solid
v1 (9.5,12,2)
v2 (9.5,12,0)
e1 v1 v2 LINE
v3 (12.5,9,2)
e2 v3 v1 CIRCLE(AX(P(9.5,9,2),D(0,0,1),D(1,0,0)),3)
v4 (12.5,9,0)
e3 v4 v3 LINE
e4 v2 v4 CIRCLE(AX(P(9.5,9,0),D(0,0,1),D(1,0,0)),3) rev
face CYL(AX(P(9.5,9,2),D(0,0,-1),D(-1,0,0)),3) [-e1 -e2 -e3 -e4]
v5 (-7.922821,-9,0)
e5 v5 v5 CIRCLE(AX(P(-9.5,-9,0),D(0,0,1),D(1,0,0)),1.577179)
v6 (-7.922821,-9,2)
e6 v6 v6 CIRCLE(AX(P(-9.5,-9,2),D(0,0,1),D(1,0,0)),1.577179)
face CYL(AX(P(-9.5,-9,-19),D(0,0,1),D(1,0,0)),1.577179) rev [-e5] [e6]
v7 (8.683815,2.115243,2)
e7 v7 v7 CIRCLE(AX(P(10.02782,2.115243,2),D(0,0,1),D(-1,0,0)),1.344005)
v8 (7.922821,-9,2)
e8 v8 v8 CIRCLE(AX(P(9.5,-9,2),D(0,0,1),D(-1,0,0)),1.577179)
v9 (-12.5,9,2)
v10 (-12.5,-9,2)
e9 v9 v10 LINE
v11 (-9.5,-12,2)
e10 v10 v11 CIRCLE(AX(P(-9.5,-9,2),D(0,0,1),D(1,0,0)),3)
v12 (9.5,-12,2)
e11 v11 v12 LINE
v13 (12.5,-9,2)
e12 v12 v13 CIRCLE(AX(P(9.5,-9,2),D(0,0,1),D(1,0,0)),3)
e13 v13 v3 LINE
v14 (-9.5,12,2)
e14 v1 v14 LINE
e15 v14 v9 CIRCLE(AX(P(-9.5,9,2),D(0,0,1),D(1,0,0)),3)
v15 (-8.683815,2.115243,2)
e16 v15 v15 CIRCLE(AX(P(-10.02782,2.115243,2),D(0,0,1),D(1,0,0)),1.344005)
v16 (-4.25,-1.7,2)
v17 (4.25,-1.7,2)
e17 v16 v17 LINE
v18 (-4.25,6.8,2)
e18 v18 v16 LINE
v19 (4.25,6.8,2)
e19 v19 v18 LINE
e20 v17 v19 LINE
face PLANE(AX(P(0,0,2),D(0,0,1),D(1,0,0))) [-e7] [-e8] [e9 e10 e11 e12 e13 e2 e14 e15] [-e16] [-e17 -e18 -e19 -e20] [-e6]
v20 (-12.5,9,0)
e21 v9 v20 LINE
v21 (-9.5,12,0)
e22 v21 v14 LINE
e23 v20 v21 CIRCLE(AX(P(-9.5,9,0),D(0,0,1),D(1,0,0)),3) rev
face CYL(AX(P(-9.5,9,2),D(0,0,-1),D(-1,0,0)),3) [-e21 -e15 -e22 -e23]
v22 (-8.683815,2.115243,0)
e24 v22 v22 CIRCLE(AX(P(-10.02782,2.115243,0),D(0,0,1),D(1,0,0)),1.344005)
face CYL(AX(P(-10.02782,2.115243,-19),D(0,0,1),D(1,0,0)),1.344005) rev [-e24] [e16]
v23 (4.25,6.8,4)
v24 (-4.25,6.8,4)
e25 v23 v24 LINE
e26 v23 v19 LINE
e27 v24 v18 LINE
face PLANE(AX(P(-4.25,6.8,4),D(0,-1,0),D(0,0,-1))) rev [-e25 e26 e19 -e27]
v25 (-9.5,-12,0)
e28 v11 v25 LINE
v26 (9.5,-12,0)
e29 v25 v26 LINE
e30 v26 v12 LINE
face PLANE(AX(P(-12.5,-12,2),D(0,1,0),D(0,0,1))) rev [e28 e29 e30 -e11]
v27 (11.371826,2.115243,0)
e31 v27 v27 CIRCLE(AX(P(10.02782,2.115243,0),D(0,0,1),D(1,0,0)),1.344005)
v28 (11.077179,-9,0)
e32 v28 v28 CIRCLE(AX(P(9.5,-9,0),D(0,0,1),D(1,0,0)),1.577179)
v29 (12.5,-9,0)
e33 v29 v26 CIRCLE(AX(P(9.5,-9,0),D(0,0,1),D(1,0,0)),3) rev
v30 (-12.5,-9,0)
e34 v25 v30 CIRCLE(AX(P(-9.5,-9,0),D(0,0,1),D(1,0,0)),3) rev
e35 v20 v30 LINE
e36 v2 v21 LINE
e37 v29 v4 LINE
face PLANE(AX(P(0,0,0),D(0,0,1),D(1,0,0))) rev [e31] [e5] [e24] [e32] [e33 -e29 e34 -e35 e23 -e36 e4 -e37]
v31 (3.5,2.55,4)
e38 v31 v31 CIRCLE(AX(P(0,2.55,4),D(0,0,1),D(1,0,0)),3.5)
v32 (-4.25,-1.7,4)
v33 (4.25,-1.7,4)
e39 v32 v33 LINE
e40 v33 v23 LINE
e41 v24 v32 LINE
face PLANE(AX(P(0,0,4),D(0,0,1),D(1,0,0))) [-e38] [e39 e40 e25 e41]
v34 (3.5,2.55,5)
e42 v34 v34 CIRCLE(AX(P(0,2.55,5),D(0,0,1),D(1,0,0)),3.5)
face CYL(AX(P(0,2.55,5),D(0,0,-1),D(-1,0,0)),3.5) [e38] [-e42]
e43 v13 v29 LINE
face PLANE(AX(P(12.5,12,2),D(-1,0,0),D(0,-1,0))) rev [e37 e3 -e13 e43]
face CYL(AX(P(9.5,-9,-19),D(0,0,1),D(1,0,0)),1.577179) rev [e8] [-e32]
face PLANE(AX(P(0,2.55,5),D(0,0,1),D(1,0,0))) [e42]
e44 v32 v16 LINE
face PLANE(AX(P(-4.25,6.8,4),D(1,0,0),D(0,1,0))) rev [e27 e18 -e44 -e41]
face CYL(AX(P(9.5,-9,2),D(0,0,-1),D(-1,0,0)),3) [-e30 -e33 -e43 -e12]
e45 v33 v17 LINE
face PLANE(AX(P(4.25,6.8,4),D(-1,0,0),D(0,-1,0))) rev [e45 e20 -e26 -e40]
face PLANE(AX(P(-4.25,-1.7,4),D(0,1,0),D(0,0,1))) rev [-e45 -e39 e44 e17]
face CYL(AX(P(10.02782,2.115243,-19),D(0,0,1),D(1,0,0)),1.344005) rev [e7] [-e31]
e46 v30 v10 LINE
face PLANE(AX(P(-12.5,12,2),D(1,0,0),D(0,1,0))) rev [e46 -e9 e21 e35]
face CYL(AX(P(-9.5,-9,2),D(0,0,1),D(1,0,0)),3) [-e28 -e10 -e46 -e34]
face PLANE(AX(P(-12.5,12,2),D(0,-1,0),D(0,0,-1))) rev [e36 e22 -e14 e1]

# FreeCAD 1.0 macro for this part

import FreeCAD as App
import Part
import Sketcher


def edges_at(feature, points):
    """Names of the edges that pass closest to the given points."""
    edges = feature.Shape.Edges
    near = lambda p: min(range(len(edges)), key=lambda i: edges[i].distToShape(Part.Vertex(*p))[0])
    return sorted({f"Edge{near(p) + 1}" for p in points})


def add_polygon(sketch, points):
    """Adds a closed chain of lines whose ends are joined by coincident constraints."""
    first, n = sketch.GeometryCount, len(points)
    for a, b in zip(points, points[1:] + points[:1]):
        sketch.addGeometry(Part.LineSegment(App.Vector(*a, 0), App.Vector(*b, 0)), False)
    for i in range(n):
        sketch.addConstraint(Sketcher.Constraint("Coincident", first + i, 2, first + (i + 1) % n, 1))

doc = App.newDocument("Part")
body = doc.addObject("PartDesign::Body", "Body")

# Sketch on XY plane
sketch1 = body.newObject("Sketcher::SketchObject", "Sketch")
sketch1.AttachmentSupport = (doc.getObject("XY_Plane"), [""])
sketch1.MapMode = "FlatFace"
add_polygon(sketch1, [(-12.5, 12), (-12.5, -12), (12.5, -12), (12.5, 12)])  # lines 0-3
sketch1.addConstraint(Sketcher.Constraint("Vertical", 0))
sketch1.addConstraint(Sketcher.Constraint("Horizontal", 1))
sketch1.addConstraint(Sketcher.Constraint("Vertical", 2))
sketch1.addConstraint(Sketcher.Constraint("Horizontal", 3))
sketch1.addConstraint(Sketcher.Constraint("Symmetric", 0, 2, 2, 2, -1, 1))
sketch1.addConstraint(Sketcher.Constraint("DistanceX", 1, 1, 1, 2, 25.0))
sketch1.addConstraint(Sketcher.Constraint("DistanceY", 0, 2, 0, 1, 24.0))
pad1 = body.newObject("PartDesign::Pad", "Pad")
pad1.Profile = sketch1
pad1.Length = 2

# Sketch on XY plane
sketch2 = body.newObject("Sketcher::SketchObject", "Sketch001")
sketch2.AttachmentSupport = (doc.getObject("XY_Plane"), [""])
sketch2.MapMode = "FlatFace"
sketch2.AttachmentOffset = App.Placement(App.Vector(0, 0, 2), App.Rotation())
add_polygon(sketch2, [(-4.25, 6.8), (-4.25, -1.7), (4.25, -1.7), (4.25, 6.8)])  # lines 0-3
sketch2.addConstraint(Sketcher.Constraint("Vertical", 0))
sketch2.addConstraint(Sketcher.Constraint("Horizontal", 1))
sketch2.addConstraint(Sketcher.Constraint("Vertical", 2))
sketch2.addConstraint(Sketcher.Constraint("Horizontal", 3))
sketch2.addConstraint(Sketcher.Constraint("Equal", 3, 0))
sketch2.addConstraint(Sketcher.Constraint("DistanceX", 1, 1, 1, 2, 8.5))
sketch2.addConstraint(Sketcher.Constraint("DistanceY", 0, 2, -1, 1, 1.7))
sketch2.addConstraint(Sketcher.Constraint("DistanceX", 0, 2, -1, 1, 4.25))
pad2 = body.newObject("PartDesign::Pad", "Pad001")
pad2.Profile = sketch2
pad2.Length = 2

# Sketch on XY plane
sketch3 = body.newObject("Sketcher::SketchObject", "Sketch002")
sketch3.AttachmentSupport = (doc.getObject("XY_Plane"), [""])
sketch3.MapMode = "FlatFace"
sketch3.AttachmentOffset = App.Placement(App.Vector(0, 0, 4), App.Rotation())
sketch3.addGeometry(Part.Circle(App.Vector(0, 2.55, 0), App.Vector(0, 0, 1), 3.5), False)
sketch3.addConstraint(Sketcher.Constraint("PointOnObject", 0, 3, -2))
sketch3.addConstraint(Sketcher.Constraint("Diameter", 0, 7.0))
sketch3.addConstraint(Sketcher.Constraint("DistanceY", -1, 1, 0, 3, 2.55))
pad3 = body.newObject("PartDesign::Pad", "Pad002")
pad3.Profile = sketch3
pad3.Length = 1
doc.recompute()

fillet = body.newObject("PartDesign::Fillet", "Fillet")
fillet.Base = (pad3, edges_at(pad3, [(-12.5, -12, 1)]))
fillet.Radius = 3
doc.recompute()

fillet2 = body.newObject("PartDesign::Fillet", "Fillet001")
fillet2.Base = (fillet, edges_at(fillet, [(-12.5, 12, 1)]))
fillet2.Radius = 3
doc.recompute()

fillet3 = body.newObject("PartDesign::Fillet", "Fillet002")
fillet3.Base = (fillet2, edges_at(fillet2, [(12.5, 12, 1)]))
fillet3.Radius = 3
doc.recompute()

fillet4 = body.newObject("PartDesign::Fillet", "Fillet003")
fillet4.Base = (fillet3, edges_at(fillet3, [(12.5, -12, 1)]))
fillet4.Radius = 3

# Sketch on XY plane
sketch4 = body.newObject("Sketcher::SketchObject", "Sketch003")
sketch4.AttachmentSupport = (doc.getObject("XY_Plane"), [""])
sketch4.MapMode = "FlatFace"
sketch4.AttachmentOffset = App.Placement(App.Vector(0, 0, 2), App.Rotation())
sketch4.addGeometry(Part.Circle(App.Vector(-10.02782, 2.115243, 0), App.Vector(0, 0, 1), 1.344005), False)
sketch4.addGeometry(Part.Circle(App.Vector(10.02782, 2.115243, 0), App.Vector(0, 0, 1), 1.344005), False)
sketch4.addGeometry(Part.Circle(App.Vector(-9.5, -9, 0), App.Vector(0, 0, 1), 1.577179), False)
sketch4.addGeometry(Part.Circle(App.Vector(9.5, -9, 0), App.Vector(0, 0, 1), 1.577179), False)
sketch4.addConstraint(Sketcher.Constraint("Equal", 0, 1))
sketch4.addConstraint(Sketcher.Constraint("Equal", 2, 3))
sketch4.addConstraint(Sketcher.Constraint("Symmetric", 0, 3, 1, 3, -2))
sketch4.addConstraint(Sketcher.Constraint("Symmetric", 2, 3, 3, 3, -2))
sketch4.addConstraint(Sketcher.Constraint("DistanceY", 2, 3, -1, 1, 9.0))
sketch4.addConstraint(Sketcher.Constraint("DistanceX", 2, 3, 3, 3, 19.0))
sketch4.addConstraint(Sketcher.Constraint("Diameter", 0, 2.68801))
sketch4.addConstraint(Sketcher.Constraint("Diameter", 2, 3.154358))
sketch4.addConstraint(Sketcher.Constraint("DistanceX", 0, 3, -1, 1, 10.02782))
sketch4.addConstraint(Sketcher.Constraint("DistanceY", -1, 1, 0, 3, 2.115243))
pocket1 = body.newObject("PartDesign::Pocket", "Pocket")
pocket1.Profile = sketch4
pocket1.Length = 21

doc.recompute()
